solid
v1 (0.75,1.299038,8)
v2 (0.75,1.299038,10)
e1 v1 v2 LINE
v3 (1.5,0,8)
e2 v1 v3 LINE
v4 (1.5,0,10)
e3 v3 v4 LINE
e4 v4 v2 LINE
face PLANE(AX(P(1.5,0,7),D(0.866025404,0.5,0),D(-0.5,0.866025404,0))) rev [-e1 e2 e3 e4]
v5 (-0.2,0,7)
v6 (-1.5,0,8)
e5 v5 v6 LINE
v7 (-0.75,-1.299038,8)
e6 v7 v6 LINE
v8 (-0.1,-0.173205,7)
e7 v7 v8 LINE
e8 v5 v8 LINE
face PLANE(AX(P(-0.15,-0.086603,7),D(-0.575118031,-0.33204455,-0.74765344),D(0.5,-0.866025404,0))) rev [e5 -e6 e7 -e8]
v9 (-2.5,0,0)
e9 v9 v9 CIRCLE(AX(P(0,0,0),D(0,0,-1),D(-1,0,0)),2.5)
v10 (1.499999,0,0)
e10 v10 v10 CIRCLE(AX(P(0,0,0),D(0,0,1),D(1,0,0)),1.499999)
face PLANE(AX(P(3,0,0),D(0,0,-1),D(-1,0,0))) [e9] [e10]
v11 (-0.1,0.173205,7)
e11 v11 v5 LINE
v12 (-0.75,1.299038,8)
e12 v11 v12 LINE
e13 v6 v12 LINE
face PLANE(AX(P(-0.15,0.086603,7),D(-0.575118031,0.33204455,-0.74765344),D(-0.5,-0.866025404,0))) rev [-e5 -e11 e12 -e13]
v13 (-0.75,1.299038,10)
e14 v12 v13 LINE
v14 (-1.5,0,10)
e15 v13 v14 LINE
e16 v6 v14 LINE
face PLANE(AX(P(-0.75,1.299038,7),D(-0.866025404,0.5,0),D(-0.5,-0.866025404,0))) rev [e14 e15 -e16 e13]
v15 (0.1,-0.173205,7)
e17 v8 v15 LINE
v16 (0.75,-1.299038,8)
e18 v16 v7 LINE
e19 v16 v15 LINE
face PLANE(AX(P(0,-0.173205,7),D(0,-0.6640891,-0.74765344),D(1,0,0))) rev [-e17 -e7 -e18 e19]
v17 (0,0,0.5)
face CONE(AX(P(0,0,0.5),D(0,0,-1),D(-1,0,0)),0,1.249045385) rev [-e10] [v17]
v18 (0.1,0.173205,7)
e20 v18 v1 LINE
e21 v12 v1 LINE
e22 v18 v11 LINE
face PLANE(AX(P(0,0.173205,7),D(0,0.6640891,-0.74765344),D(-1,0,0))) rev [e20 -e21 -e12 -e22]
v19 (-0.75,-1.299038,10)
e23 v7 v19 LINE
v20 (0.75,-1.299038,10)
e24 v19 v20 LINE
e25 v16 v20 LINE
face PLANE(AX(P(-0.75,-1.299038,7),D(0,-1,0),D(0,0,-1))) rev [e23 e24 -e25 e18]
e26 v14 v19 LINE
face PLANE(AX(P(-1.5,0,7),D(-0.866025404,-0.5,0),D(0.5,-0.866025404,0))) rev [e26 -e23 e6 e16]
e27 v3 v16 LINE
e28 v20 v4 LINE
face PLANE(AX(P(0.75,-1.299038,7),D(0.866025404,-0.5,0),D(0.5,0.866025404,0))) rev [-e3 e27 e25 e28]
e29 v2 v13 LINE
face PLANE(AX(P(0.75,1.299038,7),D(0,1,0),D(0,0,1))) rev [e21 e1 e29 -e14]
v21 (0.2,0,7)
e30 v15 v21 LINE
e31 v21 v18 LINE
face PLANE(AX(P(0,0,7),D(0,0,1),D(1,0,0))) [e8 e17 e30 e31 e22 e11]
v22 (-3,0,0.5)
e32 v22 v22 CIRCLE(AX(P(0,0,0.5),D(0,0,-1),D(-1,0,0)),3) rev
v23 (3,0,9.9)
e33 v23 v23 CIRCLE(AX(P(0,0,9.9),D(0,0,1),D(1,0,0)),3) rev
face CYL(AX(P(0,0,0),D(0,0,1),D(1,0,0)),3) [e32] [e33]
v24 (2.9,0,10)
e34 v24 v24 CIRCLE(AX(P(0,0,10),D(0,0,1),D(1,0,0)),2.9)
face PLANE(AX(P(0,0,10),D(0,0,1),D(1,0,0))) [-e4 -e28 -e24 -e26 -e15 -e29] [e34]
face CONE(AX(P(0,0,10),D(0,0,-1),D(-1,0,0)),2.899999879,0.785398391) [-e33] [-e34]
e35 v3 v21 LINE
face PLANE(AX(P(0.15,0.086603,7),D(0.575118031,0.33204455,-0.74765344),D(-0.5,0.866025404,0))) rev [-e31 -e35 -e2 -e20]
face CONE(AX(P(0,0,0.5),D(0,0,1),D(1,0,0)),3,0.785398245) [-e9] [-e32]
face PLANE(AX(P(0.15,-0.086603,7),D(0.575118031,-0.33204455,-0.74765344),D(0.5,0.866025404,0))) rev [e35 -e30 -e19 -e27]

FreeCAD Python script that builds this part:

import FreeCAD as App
import Part
import Sketcher
Q = App.Units.Quantity


def edges_at(feature, points):
    """Names of the edges that pass closest to the given points."""
    edges = feature.Shape.Edges
    near = lambda p: min(range(len(edges)), key=lambda i: edges[i].distToShape(Part.Vertex(*p))[0])
    return sorted({f"Edge{near(p) + 1}" for p in points})


def add_polygon(sketch, points):
    """Adds a closed chain of lines whose ends are joined by coincident constraints."""
    first, n = sketch.GeometryCount, len(points)
    for a, b in zip(points, points[1:] + points[:1]):
        sketch.addGeometry(Part.LineSegment(App.Vector(*a, 0), App.Vector(*b, 0)), False)
    for i in range(n):
        sketch.addConstraint(Sketcher.Constraint("Coincident", first + i, 2, first + (i + 1) % n, 1))

doc = App.newDocument("Part")
params = doc.addObject("Spreadsheet::Sheet", "Params")
for row, (alias, value) in enumerate([
    ("sketch1_width", "3 mm"),
    ("sketch1_height", "10 mm"),
    ("revolution_angle", "360 deg"),
    ("sketch2_width", "1.5 mm"),
    ("pocket1_length", "3 mm"),
    ("sketch3_width", "1.499999 mm"),
    ("sketch3_height", "0.5 mm"),
    ("groove_angle", "360 deg"),
    ("chamfer_size", "0.1 mm"),
    ("chamfer_size2", "0.1 mm"),
    ("chamfer2_size", "1.125833 mm"),
    ("chamfer2_size2", "1 mm"),
    ("chamfer3_size", "0.5 mm"),
    ("chamfer3_size2", "0.5 mm"),
], start=1):
    params.set(f"A{row}", alias)
    params.set(f"B{row}", "=" + value)
    params.setAlias(f"B{row}", alias)

body = doc.addObject("PartDesign::Body", "Body")

# Sketch on XZ plane
sketch1 = body.newObject("Sketcher::SketchObject", "Sketch")
sketch1.AttachmentSupport = (doc.getObject("XZ_Plane"), [""])
sketch1.MapMode = "FlatFace"
add_polygon(sketch1, [(0, 0), (0, 10), (3, 10), (3, 0)])  # lines 0-3
sketch1.addConstraint(Sketcher.Constraint("Vertical", 0))
sketch1.addConstraint(Sketcher.Constraint("Horizontal", 1))
sketch1.addConstraint(Sketcher.Constraint("Vertical", 2))
sketch1.addConstraint(Sketcher.Constraint("Horizontal", 3))
sketch1.addConstraint(Sketcher.Constraint("Coincident", 3, 2, -1, 1))
sketch1.addConstraint(Sketcher.Constraint("DistanceX", 1, 1, 1, 2, 3.0))
sketch1.addConstraint(Sketcher.Constraint("DistanceY", 0, 1, 0, 2, 10.0))
sketch1.setExpression("Constraints[9]", "Params.sketch1_width")
sketch1.setExpression("Constraints[10]", "Params.sketch1_height")
revolution = body.newObject("PartDesign::Revolution", "Revolution")
revolution.Profile = sketch1
revolution.ReferenceAxis = (sketch1, ["V_Axis"])
revolution.setExpression("Angle", "Params.revolution_angle")

# Sketch on XY plane
sketch2 = body.newObject("Sketcher::SketchObject", "Sketch001")
sketch2.AttachmentSupport = (doc.getObject("XY_Plane"), [""])
sketch2.MapMode = "FlatFace"
sketch2.AttachmentOffset = App.Placement(App.Vector(0, 0, 10), App.Rotation())
add_polygon(sketch2, [(0.8, -1.3), (1.5, 0), (0.8, 1.3), (-0.8, 1.3), (-1.5, 0), (-0.8, -1.3)])  # lines 0-5
sketch2.addConstraint(Sketcher.Constraint("Horizontal", 2))
sketch2.addConstraint(Sketcher.Constraint("Horizontal", 5))
sketch2.addConstraint(Sketcher.Constraint("Symmetric", 0, 2, 3, 2, -1, 1))
sketch2.addConstraint(Sketcher.Constraint("Symmetric", 1, 2, 4, 2, -1, 1))
sketch2.addConstraint(Sketcher.Constraint("PointOnObject", 0, 2, -1))
sketch2.addConstraint(Sketcher.Constraint("Parallel", 0, 3))
sketch2.addConstraint(Sketcher.Constraint("Vertical", 2, 2, 4, 2))
sketch2.addConstraint(Sketcher.Constraint("Angle", 0, Q("60 deg")))
sketch2.addConstraint(Sketcher.Constraint("DistanceX", 2, 2, 2, 1, 1.5))
sketch2.addConstraint(Sketcher.Constraint("DistanceX", 3, 2, 0, 2, 3.0))
sketch2.setExpression("Constraints[14]", "Params.sketch2_width")
pocket1 = body.newObject("PartDesign::Pocket", "Pocket")
pocket1.Profile = sketch2
pocket1.setExpression("Length", "Params.pocket1_length")

# Sketch on XZ plane
sketch3 = body.newObject("Sketcher::SketchObject", "Sketch002")
sketch3.AttachmentSupport = (doc.getObject("XZ_Plane"), [""])
sketch3.MapMode = "FlatFace"
add_polygon(sketch3, [(1.5, 0), (0, 0), (0, 0.5)])  # lines 0-2
sketch3.addConstraint(Sketcher.Constraint("Horizontal", 0))
sketch3.addConstraint(Sketcher.Constraint("Vertical", 1))
sketch3.addConstraint(Sketcher.Constraint("Coincident", 0, 2, -1, 1))
sketch3.addConstraint(Sketcher.Constraint("DistanceX", 0, 2, 0, 1, 1.499999))
sketch3.addConstraint(Sketcher.Constraint("DistanceY", 1, 1, 1, 2, 0.5))
sketch3.setExpression("Constraints[6]", "Params.sketch3_width")
sketch3.setExpression("Constraints[7]", "Params.sketch3_height")
groove = body.newObject("PartDesign::Groove", "Groove")
groove.Profile = sketch3
groove.ReferenceAxis = (sketch3, ["V_Axis"])
groove.setExpression("Angle", "Params.groove_angle")
doc.recompute()

chamfer = body.newObject("PartDesign::Chamfer", "Chamfer")
chamfer.Base = (groove, edges_at(groove, [(-3, 0, 10)]))
chamfer.ChamferType = "Two distances"
chamfer.setExpression("Size", "Params.chamfer_size")
chamfer.setExpression("Size2", "Params.chamfer_size2")
doc.recompute()

chamfer2 = body.newObject("PartDesign::Chamfer", "Chamfer001")
chamfer2.Base = (chamfer, edges_at(chamfer, [
    (0, -1.299, 7),
    (-1.125, -0.65, 7),
    (-1.125, 0.65, 7),
    (0, 1.299, 7),
    (1.125, 0.65, 7),
    (1.125, -0.65, 7),
]))
chamfer2.ChamferType = "Two distances"
chamfer2.setExpression("Size", "Params.chamfer2_size")
chamfer2.setExpression("Size2", "Params.chamfer2_size2")
chamfer2.FlipDirection = True
doc.recompute()

chamfer3 = body.newObject("PartDesign::Chamfer", "Chamfer002")
chamfer3.Base = (chamfer2, edges_at(chamfer2, [(-3, 0, 0)]))
chamfer3.ChamferType = "Two distances"
chamfer3.setExpression("Size", "Params.chamfer3_size")
chamfer3.setExpression("Size2", "Params.chamfer3_size2")

doc.recompute()
